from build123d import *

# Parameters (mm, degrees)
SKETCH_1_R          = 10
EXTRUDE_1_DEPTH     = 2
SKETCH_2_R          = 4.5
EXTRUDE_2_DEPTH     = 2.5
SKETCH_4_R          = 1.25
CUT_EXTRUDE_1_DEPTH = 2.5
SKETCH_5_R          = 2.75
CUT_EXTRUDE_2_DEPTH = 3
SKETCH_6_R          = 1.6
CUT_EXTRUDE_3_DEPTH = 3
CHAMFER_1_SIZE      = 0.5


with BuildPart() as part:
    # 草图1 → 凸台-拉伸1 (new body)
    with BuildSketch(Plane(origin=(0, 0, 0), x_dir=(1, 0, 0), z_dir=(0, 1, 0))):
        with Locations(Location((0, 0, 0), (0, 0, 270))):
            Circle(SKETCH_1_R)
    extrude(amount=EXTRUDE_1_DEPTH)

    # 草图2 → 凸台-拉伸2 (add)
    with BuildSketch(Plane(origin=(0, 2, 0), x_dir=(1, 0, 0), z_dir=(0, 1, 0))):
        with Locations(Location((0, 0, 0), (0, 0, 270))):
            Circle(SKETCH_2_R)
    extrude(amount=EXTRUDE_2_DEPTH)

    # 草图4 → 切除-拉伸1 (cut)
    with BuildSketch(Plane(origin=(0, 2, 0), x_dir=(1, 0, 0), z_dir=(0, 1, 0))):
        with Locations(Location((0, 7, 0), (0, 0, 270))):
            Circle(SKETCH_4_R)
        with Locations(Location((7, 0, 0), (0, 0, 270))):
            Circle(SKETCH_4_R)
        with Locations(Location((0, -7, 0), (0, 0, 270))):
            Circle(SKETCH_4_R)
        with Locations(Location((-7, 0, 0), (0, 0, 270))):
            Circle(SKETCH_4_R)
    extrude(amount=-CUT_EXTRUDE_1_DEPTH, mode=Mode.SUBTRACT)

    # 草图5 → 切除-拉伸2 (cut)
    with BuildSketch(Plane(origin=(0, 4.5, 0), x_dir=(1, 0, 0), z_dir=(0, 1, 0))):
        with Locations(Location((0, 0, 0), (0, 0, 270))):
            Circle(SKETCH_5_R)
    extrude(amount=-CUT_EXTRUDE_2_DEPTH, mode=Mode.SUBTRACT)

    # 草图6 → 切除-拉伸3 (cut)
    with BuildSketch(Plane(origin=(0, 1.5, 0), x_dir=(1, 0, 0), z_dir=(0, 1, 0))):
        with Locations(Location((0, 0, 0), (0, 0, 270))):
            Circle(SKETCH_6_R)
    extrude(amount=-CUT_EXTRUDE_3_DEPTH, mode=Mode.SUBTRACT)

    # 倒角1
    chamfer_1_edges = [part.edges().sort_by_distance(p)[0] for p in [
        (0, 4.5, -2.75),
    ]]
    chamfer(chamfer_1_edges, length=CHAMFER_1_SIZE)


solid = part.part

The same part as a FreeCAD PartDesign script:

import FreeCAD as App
import Part
import Sketcher

V = App.Vector


def edges_at(feature, points):
    """Names of the edges that pass closest to the given points."""
    edges = feature.Shape.Edges
    near = lambda p: min(range(len(edges)), key=lambda i: edges[i].distToShape(Part.Vertex(*p))[0])
    return sorted({f"Edge{near(p) + 1}" for p in points})

doc = App.newDocument("Part")
params = doc.addObject("Spreadsheet::Sheet", "Params")
for row, (alias, value) in enumerate([
    ("sketch1_diameter", "20 mm"),
    ("pad1_length", "2 mm"),
    ("sketch2_diameter", "9 mm"),
    ("pad2_length", "2.5 mm"),
    ("sketch3_diameter", "2.5 mm"),
    ("pocket1_length", "2.5 mm"),
    ("sketch4_diameter", "5.5 mm"),
    ("pocket2_length", "3 mm"),
    ("sketch5_diameter", "3.2 mm"),
    ("pocket3_length", "3 mm"),
    ("chamfer_size", "0.5 mm"),
], start=1):
    params.set(f"A{row}", alias)
    params.set(f"B{row}", "=" + value)
    params.setAlias(f"B{row}", alias)

body = doc.addObject("PartDesign::Body", "Body")

# Sketch on XZ plane
sketch1 = body.newObject("Sketcher::SketchObject", "Sketch")
sketch1.AttachmentSupport = (doc.getObject("XZ_Plane"), [""])
sketch1.MapMode = "FlatFace"
sketch1.addGeometry(Part.Circle(V(0, 0, 0), V(0, 0, 1), 10), False)
sketch1.addConstraint([
    Sketcher.Constraint("Coincident", 0, 3, -1, 1),
    Sketcher.Constraint("Diameter", 0, 20.0),
])
sketch1.setExpression("Constraints[1]", "Params.sketch1_diameter")
pad1 = body.newObject("PartDesign::Pad", "Pad")
pad1.Profile = sketch1
pad1.setExpression("Length", "Params.pad1_length")
pad1.Reversed = True

# Sketch on XZ plane
sketch2 = body.newObject("Sketcher::SketchObject", "Sketch001")
sketch2.AttachmentSupport = (doc.getObject("XZ_Plane"), [""])
sketch2.MapMode = "FlatFace"
sketch2.AttachmentOffset = App.Placement(V(0, 0, -2), App.Rotation())
sketch2.addGeometry(Part.Circle(V(0, 0, 0), V(0, 0, 1), 4.5), False)
sketch2.addConstraint([
    Sketcher.Constraint("Coincident", 0, 3, -1, 1),
    Sketcher.Constraint("Diameter", 0, 9.0),
])
sketch2.setExpression("Constraints[1]", "Params.sketch2_diameter")
pad2 = body.newObject("PartDesign::Pad", "Pad001")
pad2.Profile = sketch2
pad2.setExpression("Length", "Params.pad2_length")
pad2.Reversed = True

# Sketch on XZ plane
sketch3 = body.newObject("Sketcher::SketchObject", "Sketch002")
sketch3.AttachmentSupport = (doc.getObject("XZ_Plane"), [""])
sketch3.MapMode = "FlatFace"
sketch3.AttachmentOffset = App.Placement(V(0, 0, -2), App.Rotation())
sketch3.addGeometry([
    Part.Circle(V(0, -7, 0), V(0, 0, 1), 1.2),
    Part.Circle(V(7, 0, 0), V(0, 0, 1), 1.2),
    Part.Circle(V(0, 7, 0), V(0, 0, 1), 1.2),
    Part.Circle(V(-7, 0, 0), V(0, 0, 1), 1.2),
], False)
sketch3.addConstraint([
    Sketcher.Constraint("Equal", 0, 1),
    Sketcher.Constraint("Equal", 1, 2),
    Sketcher.Constraint("Equal", 2, 3),
    Sketcher.Constraint("Symmetric", 0, 3, 2, 3, -1, 1),
    Sketcher.Constraint("Symmetric", 1, 3, 3, 3, -1, 1),
    Sketcher.Constraint("PointOnObject", 0, 3, -2),
    Sketcher.Constraint("PointOnObject", 1, 3, -1),
    Sketcher.Constraint("Diameter", 0, 2.5),
    Sketcher.Constraint("DistanceY", 0, 3, -1, 1, 7.0),
    Sketcher.Constraint("DistanceX", -1, 1, 1, 3, 7.0),
])
sketch3.setExpression("Constraints[7]", "Params.sketch3_diameter")
pocket1 = body.newObject("PartDesign::Pocket", "Pocket")
pocket1.Profile = sketch3
pocket1.setExpression("Length", "Params.pocket1_length")
pocket1.Reversed = True

# Sketch on XZ plane
sketch4 = body.newObject("Sketcher::SketchObject", "Sketch003")
sketch4.AttachmentSupport = (doc.getObject("XZ_Plane"), [""])
sketch4.MapMode = "FlatFace"
sketch4.AttachmentOffset = App.Placement(V(0, 0, -4.5), App.Rotation())
sketch4.addGeometry(Part.Circle(V(0, 0, 0), V(0, 0, 1), 2.8), False)
sketch4.addConstraint([
    Sketcher.Constraint("Coincident", 0, 3, -1, 1),
    Sketcher.Constraint("Diameter", 0, 5.5),
])
sketch4.setExpression("Constraints[1]", "Params.sketch4_diameter")
pocket2 = body.newObject("PartDesign::Pocket", "Pocket001")
pocket2.Profile = sketch4
pocket2.setExpression("Length", "Params.pocket2_length")
pocket2.Reversed = True

# Sketch on XZ plane
sketch5 = body.newObject("Sketcher::SketchObject", "Sketch004")
sketch5.AttachmentSupport = (doc.getObject("XZ_Plane"), [""])
sketch5.MapMode = "FlatFace"
sketch5.AttachmentOffset = App.Placement(V(0, 0, -1.5), App.Rotation())
sketch5.addGeometry(Part.Circle(V(0, 0, 0), V(0, 0, 1), 1.6), False)
sketch5.addConstraint([
    Sketcher.Constraint("Coincident", 0, 3, -1, 1),
    Sketcher.Constraint("Diameter", 0, 3.2),
])
sketch5.setExpression("Constraints[1]", "Params.sketch5_diameter")
pocket3 = body.newObject("PartDesign::Pocket", "Pocket002")
pocket3.Profile = sketch5
pocket3.setExpression("Length", "Params.pocket3_length")
pocket3.Reversed = True
doc.recompute()

chamfer = body.newObject("PartDesign::Chamfer", "Chamfer")
chamfer.Base = (pocket3, edges_at(pocket3, [(0, 4.5, -2.75)]))
chamfer.setExpression("Size", "Params.chamfer_size")

doc.recompute()
